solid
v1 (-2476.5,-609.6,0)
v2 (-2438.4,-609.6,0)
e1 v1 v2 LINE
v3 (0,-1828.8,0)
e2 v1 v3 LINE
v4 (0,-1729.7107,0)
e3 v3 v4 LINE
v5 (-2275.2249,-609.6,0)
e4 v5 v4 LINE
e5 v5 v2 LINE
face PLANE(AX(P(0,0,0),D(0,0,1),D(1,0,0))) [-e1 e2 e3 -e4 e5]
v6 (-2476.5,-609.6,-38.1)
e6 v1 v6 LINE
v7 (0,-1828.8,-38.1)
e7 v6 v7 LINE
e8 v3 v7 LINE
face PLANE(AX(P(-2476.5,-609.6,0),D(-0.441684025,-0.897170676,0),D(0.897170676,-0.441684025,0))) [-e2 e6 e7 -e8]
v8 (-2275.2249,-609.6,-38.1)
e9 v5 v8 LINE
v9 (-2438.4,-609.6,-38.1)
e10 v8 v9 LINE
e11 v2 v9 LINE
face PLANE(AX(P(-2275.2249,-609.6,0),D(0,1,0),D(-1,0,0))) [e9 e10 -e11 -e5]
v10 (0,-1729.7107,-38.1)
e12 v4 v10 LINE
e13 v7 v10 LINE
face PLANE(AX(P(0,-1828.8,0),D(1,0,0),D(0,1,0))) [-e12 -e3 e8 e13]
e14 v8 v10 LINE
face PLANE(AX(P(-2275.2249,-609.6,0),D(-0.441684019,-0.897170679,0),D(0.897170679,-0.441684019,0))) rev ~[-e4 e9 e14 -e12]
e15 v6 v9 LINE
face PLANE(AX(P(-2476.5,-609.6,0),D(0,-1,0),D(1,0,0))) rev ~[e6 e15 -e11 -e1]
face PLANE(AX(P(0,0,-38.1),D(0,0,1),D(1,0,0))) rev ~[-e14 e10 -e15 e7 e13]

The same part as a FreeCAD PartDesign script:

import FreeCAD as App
import Part
import Sketcher
Q = App.Units.Quantity

doc = App.newDocument("Part")
body = doc.addObject("PartDesign::Body", "Body")

sketch1 = body.newObject("Sketcher::SketchObject", "Sketch")
sketch1.AttachmentSupport = (doc.getObject("XY_Plane"), [""])
sketch1.MapMode = "FlatFace"
sketch1.addGeometry(Part.LineSegment(App.Vector(0, -1730, 0), App.Vector(-2275, -610, 0)), False)
sketch1.addGeometry(Part.LineSegment(App.Vector(-2275, -610, 0), App.Vector(-2476, -610, 0)), False)
sketch1.addGeometry(Part.LineSegment(App.Vector(-2476, -610, 0), App.Vector(0, -1829, 0)), False)
sketch1.addGeometry(Part.LineSegment(App.Vector(0, -1829, 0), App.Vector(0, -1730, 0)), False)
sketch1.addConstraint(Sketcher.Constraint("Coincident", 0, 2, 1, 1))
sketch1.addConstraint(Sketcher.Constraint("Coincident", 1, 2, 2, 1))
sketch1.addConstraint(Sketcher.Constraint("Coincident", 2, 2, 3, 1))
sketch1.addConstraint(Sketcher.Constraint("Coincident", 3, 2, 0, 1))
sketch1.addConstraint(Sketcher.Constraint("Horizontal", 1))
sketch1.addConstraint(Sketcher.Constraint("Vertical", 3))
sketch1.addConstraint(Sketcher.Constraint("PointOnObject", 2, 2, -2))
sketch1.addConstraint(Sketcher.Constraint("Parallel", 0, 2))
sketch1.addConstraint(Sketcher.Constraint("Distance", 0, Q("2536 mm")))
sketch1.addConstraint(Sketcher.Constraint("DistanceY", 0, 2, -1, 1, Q("609.6 mm")))
sketch1.addConstraint(Sketcher.Constraint("DistanceX", 1, 2, -1, 1, Q("2476.5 mm")))
sketch1.addConstraint(Sketcher.Constraint("DistanceY", 2, 2, -1, 1, Q("1828.8 mm")))
pad1 = body.newObject("PartDesign::Pad", "Pad")
pad1.Profile = sketch1
pad1.Length = 38.1
pad1.Reversed = True

doc.recompute()
